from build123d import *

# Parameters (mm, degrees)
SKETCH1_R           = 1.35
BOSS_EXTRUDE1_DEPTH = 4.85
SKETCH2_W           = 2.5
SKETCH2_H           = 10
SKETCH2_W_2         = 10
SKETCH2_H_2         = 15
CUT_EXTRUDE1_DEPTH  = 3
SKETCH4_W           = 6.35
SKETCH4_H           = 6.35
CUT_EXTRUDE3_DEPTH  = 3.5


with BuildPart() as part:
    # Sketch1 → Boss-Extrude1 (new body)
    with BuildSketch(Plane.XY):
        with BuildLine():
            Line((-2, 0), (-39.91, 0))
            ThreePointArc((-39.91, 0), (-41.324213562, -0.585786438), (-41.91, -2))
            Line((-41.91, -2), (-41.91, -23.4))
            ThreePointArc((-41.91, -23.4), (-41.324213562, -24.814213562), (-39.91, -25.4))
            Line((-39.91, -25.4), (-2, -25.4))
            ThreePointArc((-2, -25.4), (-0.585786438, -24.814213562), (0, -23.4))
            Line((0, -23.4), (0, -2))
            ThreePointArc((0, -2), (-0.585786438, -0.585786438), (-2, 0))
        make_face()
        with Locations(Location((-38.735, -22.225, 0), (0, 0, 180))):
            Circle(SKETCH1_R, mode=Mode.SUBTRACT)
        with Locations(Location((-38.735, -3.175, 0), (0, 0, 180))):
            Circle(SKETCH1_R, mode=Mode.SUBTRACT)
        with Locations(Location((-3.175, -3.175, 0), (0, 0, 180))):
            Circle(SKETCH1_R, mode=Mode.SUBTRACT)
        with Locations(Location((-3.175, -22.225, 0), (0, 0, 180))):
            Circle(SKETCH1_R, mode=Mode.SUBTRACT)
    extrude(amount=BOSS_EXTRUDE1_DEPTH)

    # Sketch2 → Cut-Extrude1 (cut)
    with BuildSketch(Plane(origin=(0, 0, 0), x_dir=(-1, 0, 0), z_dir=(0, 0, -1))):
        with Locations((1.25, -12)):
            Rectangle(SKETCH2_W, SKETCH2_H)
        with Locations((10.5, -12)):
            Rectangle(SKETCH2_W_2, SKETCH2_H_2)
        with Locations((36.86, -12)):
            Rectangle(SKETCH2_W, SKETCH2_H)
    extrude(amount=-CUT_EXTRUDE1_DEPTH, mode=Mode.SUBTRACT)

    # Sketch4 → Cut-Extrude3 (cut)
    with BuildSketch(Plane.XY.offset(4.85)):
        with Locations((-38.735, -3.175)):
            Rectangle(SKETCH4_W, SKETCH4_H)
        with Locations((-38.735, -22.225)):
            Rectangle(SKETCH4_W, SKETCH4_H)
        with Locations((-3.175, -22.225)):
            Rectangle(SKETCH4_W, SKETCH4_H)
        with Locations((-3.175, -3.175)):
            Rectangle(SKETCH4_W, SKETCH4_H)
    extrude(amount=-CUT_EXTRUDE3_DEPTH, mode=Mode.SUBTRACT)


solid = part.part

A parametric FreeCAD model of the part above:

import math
import FreeCAD as App
import Part
import Sketcher

V = App.Vector
Q = App.Units.Quantity


def add_polygon(sketch, points):
    """Adds a closed chain of lines whose ends are joined by coincident constraints."""
    first, n = sketch.GeometryCount, len(points)
    for a, b in zip(points, points[1:] + points[:1]):
        sketch.addGeometry(Part.LineSegment(App.Vector(*a, 0), App.Vector(*b, 0)), False)
    for i in range(n):
        sketch.addConstraint(Sketcher.Constraint("Coincident", first + i, 2, first + (i + 1) % n, 1))

doc = App.newDocument("Part")
params = doc.addObject("Spreadsheet::Sheet", "Params")
for row, (alias, value) in enumerate([
    ("sketch1_radius", "2 mm"),
    ("sketch1_diameter", "2.7 mm"),
    ("sketch1_height", "21.4 mm"),
    ("sketch1_width", "37.91 mm"),
    ("pad1_length", "4.85 mm"),
    ("sketch2_width", "10 mm"),
    ("sketch2_height", "15 mm"),
    ("sketch2_width2", "2.5 mm"),
    ("pocket1_length", "3 mm"),
    ("sketch3_width", "6.35 mm"),
    ("pocket2_length", "3.5 mm"),
], start=1):
    params.set(f"A{row}", alias)
    params.set(f"B{row}", "=" + value)
    params.setAlias(f"B{row}", alias)

body = doc.addObject("PartDesign::Body", "Body")

sketch1 = body.newObject("Sketcher::SketchObject", "Sketch")
sketch1.AttachmentSupport = (doc.getObject("XY_Plane"), [""])
sketch1.MapMode = "FlatFace"
sketch1.addGeometry([
    Part.LineSegment(V(-2, 0, 0), V(-39.9, 0, 0)),
    Part.ArcOfCircle(Part.Circle(V(-39.9, -2, 0), V(0, 0, 1), 2), math.radians(90), math.radians(180)),
    Part.LineSegment(V(-41.9, -2, 0), V(-41.9, -23.4, 0)),
    Part.ArcOfCircle(Part.Circle(V(-39.9, -23.4, 0), V(0, 0, 1), 2), math.radians(-180), math.radians(-90)),
    Part.LineSegment(V(-39.9, -25.4, 0), V(-2, -25.4, 0)),
    Part.ArcOfCircle(Part.Circle(V(-2, -23.4, 0), V(0, 0, 1), 2), math.radians(-90), math.radians(0)),
    Part.LineSegment(V(0, -23.4, 0), V(0, -2, 0)),
    Part.ArcOfCircle(Part.Circle(V(-2, -2, 0), V(0, 0, 1), 2), math.radians(0), math.radians(90)),
    Part.Circle(V(-38.7, -22.2, 0), V(0, 0, 1), 1.4),
    Part.Circle(V(-3.2, -22.2, 0), V(0, 0, 1), 1.4),
    Part.Circle(V(-38.7, -3.2, 0), V(0, 0, 1), 1.4),
    Part.Circle(V(-3.2, -3.2, 0), V(0, 0, 1), 1.4),
], False)
sketch1.addConstraint([
    Sketcher.Constraint("Tangent", 0, 2, 1, 1),
    Sketcher.Constraint("Tangent", 1, 2, 2, 1),
    Sketcher.Constraint("Tangent", 2, 2, 3, 1),
    Sketcher.Constraint("Tangent", 3, 2, 4, 1),
    Sketcher.Constraint("Tangent", 4, 2, 5, 1),
    Sketcher.Constraint("Tangent", 5, 2, 6, 1),
    Sketcher.Constraint("Tangent", 6, 2, 7, 1),
    Sketcher.Constraint("Tangent", 7, 2, 0, 1),
    Sketcher.Constraint("Horizontal", 0),
    Sketcher.Constraint("Vertical", 2),
    Sketcher.Constraint("Horizontal", 4),
    Sketcher.Constraint("Vertical", 6),
    Sketcher.Constraint("Equal", 1, 3),
    Sketcher.Constraint("Equal", 3, 5),
    Sketcher.Constraint("Equal", 5, 7),
    Sketcher.Constraint("Equal", 8, 9),
    Sketcher.Constraint("Equal", 9, 10),
    Sketcher.Constraint("Equal", 10, 11),
    Sketcher.Constraint("PointOnObject", 0, 2, -1),
    Sketcher.Constraint("PointOnObject", 5, 2, -2),
    Sketcher.Constraint("Horizontal", 8, 3, 9, 3),
    Sketcher.Constraint("Horizontal", 10, 3, 11, 3),
    Sketcher.Constraint("Vertical", 8, 3, 10, 3),
    Sketcher.Constraint("Vertical", 9, 3, 11, 3),
    Sketcher.Constraint("Radius", 1, Q("2 mm")),
    Sketcher.Constraint("Diameter", 8, Q("2.7 mm")),
    Sketcher.Constraint("DistanceY", 2, 2, 2, 1, Q("21.4 mm")),
    Sketcher.Constraint("DistanceX", 0, 2, 0, 1, Q("37.91 mm")),
    Sketcher.Constraint("DistanceX", 8, 3, 9, 3, Q("35.56 mm")),
    Sketcher.Constraint("DistanceY", 8, 3, 10, 3, Q("19.05 mm")),
    Sketcher.Constraint("DistanceX", 8, 3, -1, 1, Q("38.735 mm")),
    Sketcher.Constraint("DistanceY", 8, 3, -1, 1, Q("22.225 mm")),
])
sketch1.setExpression("Constraints[24]", "Params.sketch1_radius")
sketch1.setExpression("Constraints[25]", "Params.sketch1_diameter")
sketch1.setExpression("Constraints[26]", "Params.sketch1_height")
sketch1.setExpression("Constraints[27]", "Params.sketch1_width")
pad1 = body.newObject("PartDesign::Pad", "Pad")
pad1.Profile = sketch1
pad1.setExpression("Length", "Params.pad1_length")

sketch2 = body.newObject("Sketcher::SketchObject", "Sketch001")
sketch2.AttachmentSupport = (doc.getObject("XY_Plane"), [""])
sketch2.MapMode = "FlatFace"
add_polygon(sketch2, [(0, -7), (0, -17), (-2.5, -17), (-2.5, -7)])
add_polygon(sketch2, [(-5.5, -4.5), (-5.5, -19.5), (-15.5, -19.5), (-15.5, -4.5)])
add_polygon(sketch2, [(-35.6, -7), (-35.6, -17), (-38.1, -17), (-38.1, -7)])
sketch2.addConstraint([
    Sketcher.Constraint("Vertical", 0),
    Sketcher.Constraint("Horizontal", 1),
    Sketcher.Constraint("Vertical", 2),
    Sketcher.Constraint("Horizontal", 3),
    Sketcher.Constraint("Vertical", 4),
    Sketcher.Constraint("Horizontal", 5),
    Sketcher.Constraint("Vertical", 6),
    Sketcher.Constraint("Horizontal", 7),
    Sketcher.Constraint("Vertical", 8),
    Sketcher.Constraint("Horizontal", 9),
    Sketcher.Constraint("Vertical", 10),
    Sketcher.Constraint("Horizontal", 11),
    Sketcher.Constraint("PointOnObject", 0, 2, -2),
    Sketcher.Constraint("Horizontal", 1, 2, 8, 2),
    Sketcher.Constraint("Horizontal", 3, 2, 10, 2),
    Sketcher.Constraint("Equal", 3, 9),
    Sketcher.Constraint("Equal", 7, 0),
    Sketcher.Constraint("DistanceX", 5, 2, 5, 1, Q("10 mm")),
    Sketcher.Constraint("DistanceY", 4, 2, 4, 1, Q("15 mm")),
    Sketcher.Constraint("DistanceX", 1, 2, 1, 1, Q("2.5 mm")),
    Sketcher.Constraint("DistanceY", 0, 2, -1, 1, Q("17 mm")),
    Sketcher.Constraint("DistanceX", 4, 2, 1, 2, Q("3 mm")),
    Sketcher.Constraint("DistanceY", 4, 2, -1, 1, Q("19.5 mm")),
    Sketcher.Constraint("DistanceX", 8, 2, -1, 1, Q("35.61 mm")),
])
sketch2.setExpression("Constraints[29]", "Params.sketch2_width")
sketch2.setExpression("Constraints[30]", "Params.sketch2_height")
sketch2.setExpression("Constraints[31]", "Params.sketch2_width2")
pocket1 = body.newObject("PartDesign::Pocket", "Pocket")
pocket1.Profile = sketch2
pocket1.setExpression("Length", "Params.pocket1_length")
pocket1.Reversed = True

sketch3 = body.newObject("Sketcher::SketchObject", "Sketch002")
sketch3.AttachmentSupport = (doc.getObject("XY_Plane"), [""])
sketch3.MapMode = "FlatFace"
sketch3.AttachmentOffset = App.Placement(V(0, 0, 4.85), App.Rotation())
add_polygon(sketch3, [(-42, 0), (-42, -6), (-36, -6), (-36, 0)])
add_polygon(sketch3, [(-42, -19), (-42, -25), (-36, -25), (-36, -19)])
add_polygon(sketch3, [(-6, -19), (-6, -25), (0, -25), (0, -19)])
add_polygon(sketch3, [(-6, 0), (-6, -6), (0, -6), (0, 0)])
sketch3.addConstraint([
    Sketcher.Constraint("Vertical", 0),
    Sketcher.Constraint("Horizontal", 1),
    Sketcher.Constraint("Vertical", 2),
    Sketcher.Constraint("Horizontal", 3),
    Sketcher.Constraint("Vertical", 4),
    Sketcher.Constraint("Horizontal", 5),
    Sketcher.Constraint("Vertical", 6),
    Sketcher.Constraint("Horizontal", 7),
    Sketcher.Constraint("Vertical", 8),
    Sketcher.Constraint("Horizontal", 9),
    Sketcher.Constraint("Vertical", 10),
    Sketcher.Constraint("Horizontal", 11),
    Sketcher.Constraint("Vertical", 12),
    Sketcher.Constraint("Horizontal", 13),
    Sketcher.Constraint("Vertical", 14),
    Sketcher.Constraint("Horizontal", 15),
    Sketcher.Constraint("Coincident", 14, 2, -1, 1),
    Sketcher.Constraint("PointOnObject", 2, 2, -1),
    Sketcher.Constraint("PointOnObject", 9, 2, -2),
    Sketcher.Constraint("Horizontal", 5, 2, 8, 2),
    Sketcher.Constraint("Horizontal", 7, 2, 10, 2),
    Sketcher.Constraint("Horizontal", 1, 2, 12, 2),
    Sketcher.Constraint("Vertical", 3, 2, 4, 2),
    Sketcher.Constraint("Vertical", 2, 2, 5, 2),
    Sketcher.Constraint("Vertical", 11, 2, 12, 2),
    Sketcher.Constraint("Equal", 7, 9),
    Sketcher.Constraint("Equal", 15, 0),
    Sketcher.Constraint("Equal", 2, 4),
    Sketcher.Constraint("DistanceX", 1, 1, 1, 2, Q("6.35 mm")),
    Sketcher.Constraint("DistanceY", 4, 2, -1, 1, Q("25.4 mm")),
    Sketcher.Constraint("DistanceX", 0, 2, -1, 1, Q("41.91 mm")),
])
sketch3.setExpression("Constraints[44]", "Params.sketch3_width")
pocket2 = body.newObject("PartDesign::Pocket", "Pocket001")
pocket2.Profile = sketch3
pocket2.setExpression("Length", "Params.pocket2_length")

doc.recompute()
